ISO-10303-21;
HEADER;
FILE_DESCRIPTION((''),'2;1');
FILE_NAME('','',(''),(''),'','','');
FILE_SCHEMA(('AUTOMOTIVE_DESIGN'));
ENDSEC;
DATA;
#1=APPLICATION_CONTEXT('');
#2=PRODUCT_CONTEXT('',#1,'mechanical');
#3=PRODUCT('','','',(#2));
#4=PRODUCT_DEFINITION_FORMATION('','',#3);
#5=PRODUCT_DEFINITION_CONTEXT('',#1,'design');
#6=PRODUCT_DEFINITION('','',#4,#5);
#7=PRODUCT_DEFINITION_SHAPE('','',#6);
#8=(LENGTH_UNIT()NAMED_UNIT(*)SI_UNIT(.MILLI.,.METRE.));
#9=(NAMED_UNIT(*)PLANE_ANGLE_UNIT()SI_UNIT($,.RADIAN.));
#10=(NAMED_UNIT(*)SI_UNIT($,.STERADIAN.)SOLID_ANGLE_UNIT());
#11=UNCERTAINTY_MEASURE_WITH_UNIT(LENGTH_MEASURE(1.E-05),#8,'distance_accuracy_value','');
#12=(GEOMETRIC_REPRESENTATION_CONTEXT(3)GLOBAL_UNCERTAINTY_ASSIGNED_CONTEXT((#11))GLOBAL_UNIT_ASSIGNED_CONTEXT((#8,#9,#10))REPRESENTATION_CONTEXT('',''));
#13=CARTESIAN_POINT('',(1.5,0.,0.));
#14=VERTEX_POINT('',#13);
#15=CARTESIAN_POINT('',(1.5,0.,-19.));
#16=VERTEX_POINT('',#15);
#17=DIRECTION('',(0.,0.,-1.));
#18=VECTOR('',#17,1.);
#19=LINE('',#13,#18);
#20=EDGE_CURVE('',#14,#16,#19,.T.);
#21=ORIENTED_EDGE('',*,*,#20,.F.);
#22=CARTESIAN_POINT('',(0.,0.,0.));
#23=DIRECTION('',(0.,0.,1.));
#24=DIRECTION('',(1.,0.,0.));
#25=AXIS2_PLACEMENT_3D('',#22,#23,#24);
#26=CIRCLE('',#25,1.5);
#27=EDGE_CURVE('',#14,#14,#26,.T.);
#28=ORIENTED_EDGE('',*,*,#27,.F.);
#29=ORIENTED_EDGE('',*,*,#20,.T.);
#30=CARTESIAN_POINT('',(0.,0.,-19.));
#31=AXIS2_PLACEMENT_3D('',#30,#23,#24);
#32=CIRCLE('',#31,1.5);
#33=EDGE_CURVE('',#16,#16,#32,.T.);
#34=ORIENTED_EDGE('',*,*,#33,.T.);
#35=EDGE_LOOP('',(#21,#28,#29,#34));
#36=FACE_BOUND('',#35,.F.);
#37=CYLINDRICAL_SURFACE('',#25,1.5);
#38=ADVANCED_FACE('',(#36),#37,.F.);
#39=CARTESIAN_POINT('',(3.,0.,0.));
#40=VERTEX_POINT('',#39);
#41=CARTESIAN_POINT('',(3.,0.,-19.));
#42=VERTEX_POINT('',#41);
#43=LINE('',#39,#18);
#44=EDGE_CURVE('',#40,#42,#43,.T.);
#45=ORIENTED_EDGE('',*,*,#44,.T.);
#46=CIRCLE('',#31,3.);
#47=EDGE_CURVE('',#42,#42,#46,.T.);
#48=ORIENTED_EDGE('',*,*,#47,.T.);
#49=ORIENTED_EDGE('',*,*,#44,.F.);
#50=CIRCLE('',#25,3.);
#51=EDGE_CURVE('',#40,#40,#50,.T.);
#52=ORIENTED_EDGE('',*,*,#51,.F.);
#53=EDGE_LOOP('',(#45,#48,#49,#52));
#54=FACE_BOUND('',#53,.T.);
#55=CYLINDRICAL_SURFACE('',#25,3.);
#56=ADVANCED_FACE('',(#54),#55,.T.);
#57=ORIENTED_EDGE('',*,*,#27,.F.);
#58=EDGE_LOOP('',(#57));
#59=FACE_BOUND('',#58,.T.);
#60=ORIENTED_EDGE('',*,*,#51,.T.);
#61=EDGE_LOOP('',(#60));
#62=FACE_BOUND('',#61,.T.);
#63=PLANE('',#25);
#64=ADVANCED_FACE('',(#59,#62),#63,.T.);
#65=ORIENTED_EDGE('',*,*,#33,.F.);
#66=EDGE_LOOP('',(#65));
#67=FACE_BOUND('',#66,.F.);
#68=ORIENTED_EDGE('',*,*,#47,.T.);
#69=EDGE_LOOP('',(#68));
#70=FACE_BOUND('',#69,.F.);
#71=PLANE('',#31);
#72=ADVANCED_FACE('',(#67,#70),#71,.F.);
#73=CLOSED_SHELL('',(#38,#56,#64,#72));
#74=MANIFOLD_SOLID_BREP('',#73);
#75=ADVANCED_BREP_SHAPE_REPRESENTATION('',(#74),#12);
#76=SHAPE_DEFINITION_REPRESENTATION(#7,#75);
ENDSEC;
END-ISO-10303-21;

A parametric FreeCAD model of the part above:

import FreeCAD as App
import Part
import Sketcher

V = App.Vector
Q = App.Units.Quantity

doc = App.newDocument("Part")
params = doc.addObject("Spreadsheet::Sheet", "Params")
for row, (alias, value) in enumerate([
    ("sketch1_diameter", "6 mm"),
    ("sketch1_diameter2", "3 mm"),
    ("pad1_length", "19 mm"),
], start=1):
    params.set(f"A{row}", alias)
    params.set(f"B{row}", "=" + value)
    params.setAlias(f"B{row}", alias)

body = doc.addObject("PartDesign::Body", "Body")

# Sketch on XY plane
sketch1 = body.newObject("Sketcher::SketchObject", "Sketch")
sketch1.AttachmentSupport = (doc.getObject("XY_Plane"), [""])
sketch1.MapMode = "FlatFace"
sketch1.addGeometry([
    Part.Circle(V(0, 0, 0), V(0, 0, 1), 3),
    Part.Circle(V(0, 0, 0), V(0, 0, 1), 1.5),
], False)
sketch1.addConstraint([
    Sketcher.Constraint("Coincident", 0, 3, -1, 1),
    Sketcher.Constraint("Coincident", 1, 3, -1, 1),
    Sketcher.Constraint("Diameter", 0, Q("6 mm")),
    Sketcher.Constraint("Diameter", 1, Q("3 mm")),
])
sketch1.setExpression("Constraints[2]", "Params.sketch1_diameter")
sketch1.setExpression("Constraints[3]", "Params.sketch1_diameter2")
pad1 = body.newObject("PartDesign::Pad", "Pad")
pad1.Profile = sketch1
pad1.setExpression("Length", "Params.pad1_length")
pad1.Reversed = True

doc.recompute()
